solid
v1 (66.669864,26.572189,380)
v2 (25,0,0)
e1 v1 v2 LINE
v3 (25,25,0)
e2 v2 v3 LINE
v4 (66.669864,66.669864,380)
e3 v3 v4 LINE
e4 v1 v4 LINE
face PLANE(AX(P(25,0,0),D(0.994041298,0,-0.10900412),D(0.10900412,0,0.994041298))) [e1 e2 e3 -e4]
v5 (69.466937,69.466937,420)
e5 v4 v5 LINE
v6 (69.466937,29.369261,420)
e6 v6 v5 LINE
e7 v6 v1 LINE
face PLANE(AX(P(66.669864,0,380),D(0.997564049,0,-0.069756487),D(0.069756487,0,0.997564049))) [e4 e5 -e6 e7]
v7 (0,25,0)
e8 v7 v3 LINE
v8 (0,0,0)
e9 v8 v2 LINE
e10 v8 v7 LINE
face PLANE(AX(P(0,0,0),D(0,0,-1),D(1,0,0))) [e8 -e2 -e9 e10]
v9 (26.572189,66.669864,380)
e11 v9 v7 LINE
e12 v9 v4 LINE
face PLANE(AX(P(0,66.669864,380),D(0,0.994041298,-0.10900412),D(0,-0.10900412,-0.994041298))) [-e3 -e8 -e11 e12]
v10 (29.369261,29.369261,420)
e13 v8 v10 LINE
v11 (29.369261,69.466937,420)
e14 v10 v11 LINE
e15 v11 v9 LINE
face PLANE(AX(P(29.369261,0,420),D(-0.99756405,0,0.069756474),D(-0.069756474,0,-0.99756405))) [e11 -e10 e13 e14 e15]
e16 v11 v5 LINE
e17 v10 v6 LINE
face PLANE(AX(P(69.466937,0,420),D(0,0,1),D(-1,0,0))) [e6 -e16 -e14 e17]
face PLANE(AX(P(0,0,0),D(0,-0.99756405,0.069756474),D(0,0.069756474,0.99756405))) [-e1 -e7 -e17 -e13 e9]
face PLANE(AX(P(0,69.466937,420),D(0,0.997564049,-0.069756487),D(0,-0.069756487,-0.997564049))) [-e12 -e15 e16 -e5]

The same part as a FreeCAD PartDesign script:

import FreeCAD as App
import Part
import Sketcher
from FreeCAD import Vector
Q = App.Units.Quantity

doc = App.newDocument("Part")
params = doc.addObject("Spreadsheet::Sheet", "Params")
for row, (alias, value) in enumerate([
    ("sketch1_width", "25 mm"),
    ("pad1_length", "70 mm"),
    ("sketch2_height", "420 mm"),
    ("pocket1_length", "240 mm"),
], start=1):
    params.set(f"A{row}", alias)
    params.set(f"B{row}", "=" + value)
    params.setAlias(f"B{row}", alias)

body = doc.addObject("PartDesign::Body", "Body")

sketch1 = body.newObject("Sketcher::SketchObject", "Sketch")
sketch1.AttachmentSupport = (doc.getObject("XZ_Plane"), [""])
sketch1.MapMode = "FlatFace"
sketch1.addGeometry([
    Part.LineSegment(Vector(29, 420, 0), Vector(0, 0, 0)),
    Part.LineSegment(Vector(0, 0, 0), Vector(25, 0, 0)),
    Part.LineSegment(Vector(25, 0, 0), Vector(67, 380, 0)),
    Part.LineSegment(Vector(67, 380, 0), Vector(69, 420, 0)),
    Part.LineSegment(Vector(69, 420, 0), Vector(29, 420, 0)),
], False)
sketch1.addConstraint([
    Sketcher.Constraint("Coincident", 0, 2, 1, 1),
    Sketcher.Constraint("Coincident", 1, 2, 2, 1),
    Sketcher.Constraint("Coincident", 2, 2, 3, 1),
    Sketcher.Constraint("Coincident", 3, 2, 4, 1),
    Sketcher.Constraint("Coincident", 4, 2, 0, 1),
    Sketcher.Constraint("Horizontal", 1),
    Sketcher.Constraint("Horizontal", 4),
    Sketcher.Constraint("Coincident", 0, 2, -1, 1),
    Sketcher.Constraint("Parallel", 0, 3),
    Sketcher.Constraint("DistanceX", 1, 1, 1, 2, Q("25 mm")),
    Sketcher.Constraint("Angle", 0, Q("-94 deg")),
    Sketcher.Constraint("DistanceY", -1, 1, 2, 2, Q("380 mm")),
    Sketcher.Constraint("DistanceY", -1, 1, 3, 2, Q("420 mm")),
    Sketcher.Constraint("Distance", 2, Q("382.27788 mm")),
])
sketch1.setExpression("Constraints[9]", "Params.sketch1_width")
pad1 = body.newObject("PartDesign::Pad", "Pad")
pad1.Profile = sketch1
pad1.setExpression("Length", "Params.pad1_length")
pad1.Reversed = True

sketch2 = body.newObject("Sketcher::SketchObject", "Sketch001")
sketch2.AttachmentSupport = (doc.getObject("YZ_Plane"), [""])
sketch2.MapMode = "FlatFace"
sketch2.addGeometry([
    Part.LineSegment(Vector(0, 420, 0), Vector(0, 0, 0)),
    Part.LineSegment(Vector(0, 0, 0), Vector(29.4, 420, 0)),
    Part.LineSegment(Vector(29.4, 420, 0), Vector(0, 420, 0)),
    Part.LineSegment(Vector(66.7, 380, 0), Vector(25, 0, 0)),
    Part.LineSegment(Vector(25, 0, 0), Vector(81.2, -13, 0)),
    Part.LineSegment(Vector(81.2, -13, 0), Vector(73.1, 420, 0)),
    Part.LineSegment(Vector(73.1, 420, 0), Vector(69.5, 420, 0)),
    Part.LineSegment(Vector(69.5, 420, 0), Vector(66.7, 380, 0)),
], False)
sketch2.addConstraint([
    Sketcher.Constraint("Coincident", 0, 2, 1, 1),
    Sketcher.Constraint("Coincident", 1, 2, 2, 1),
    Sketcher.Constraint("Coincident", 2, 2, 0, 1),
    Sketcher.Constraint("Coincident", 3, 2, 4, 1),
    Sketcher.Constraint("Coincident", 4, 2, 5, 1),
    Sketcher.Constraint("Coincident", 5, 2, 6, 1),
    Sketcher.Constraint("Coincident", 6, 2, 7, 1),
    Sketcher.Constraint("Coincident", 7, 2, 3, 1),
    Sketcher.Constraint("Vertical", 0),
    Sketcher.Constraint("Horizontal", 2),
    Sketcher.Constraint("Horizontal", 6),
    Sketcher.Constraint("Coincident", 0, 2, -1, 1),
    Sketcher.Constraint("PointOnObject", 3, 2, -1),
    Sketcher.Constraint("Parallel", 1, 7),
    Sketcher.Constraint("Horizontal", 2, 2, 5, 2),
    Sketcher.Constraint("DistanceY", 0, 2, 0, 1, Q("420 mm")),
    Sketcher.Constraint("Angle", 1, Q("86 deg")),
    Sketcher.Constraint("DistanceX", -1, 1, 3, 2, Q("25 mm")),
    Sketcher.Constraint("DistanceY", -1, 1, 7, 2, Q("380 mm")),
    Sketcher.Constraint("DistanceX", 1, 2, 4, 2, Q("51.812198 mm")),
    Sketcher.Constraint("Distance", 3, Q("382.27788 mm")),
    Sketcher.Constraint("DistanceX", 6, 2, 6, 1, Q("3.638197 mm")),
    Sketcher.Constraint("Distance", 4, Q("57.661077 mm")),
])
sketch2.setExpression("Constraints[15]", "Params.sketch2_height")
pocket1 = body.newObject("PartDesign::Pocket", "Pocket")
pocket1.Profile = sketch2
pocket1.setExpression("Length", "Params.pocket1_length")
pocket1.Reversed = True

doc.recompute()
